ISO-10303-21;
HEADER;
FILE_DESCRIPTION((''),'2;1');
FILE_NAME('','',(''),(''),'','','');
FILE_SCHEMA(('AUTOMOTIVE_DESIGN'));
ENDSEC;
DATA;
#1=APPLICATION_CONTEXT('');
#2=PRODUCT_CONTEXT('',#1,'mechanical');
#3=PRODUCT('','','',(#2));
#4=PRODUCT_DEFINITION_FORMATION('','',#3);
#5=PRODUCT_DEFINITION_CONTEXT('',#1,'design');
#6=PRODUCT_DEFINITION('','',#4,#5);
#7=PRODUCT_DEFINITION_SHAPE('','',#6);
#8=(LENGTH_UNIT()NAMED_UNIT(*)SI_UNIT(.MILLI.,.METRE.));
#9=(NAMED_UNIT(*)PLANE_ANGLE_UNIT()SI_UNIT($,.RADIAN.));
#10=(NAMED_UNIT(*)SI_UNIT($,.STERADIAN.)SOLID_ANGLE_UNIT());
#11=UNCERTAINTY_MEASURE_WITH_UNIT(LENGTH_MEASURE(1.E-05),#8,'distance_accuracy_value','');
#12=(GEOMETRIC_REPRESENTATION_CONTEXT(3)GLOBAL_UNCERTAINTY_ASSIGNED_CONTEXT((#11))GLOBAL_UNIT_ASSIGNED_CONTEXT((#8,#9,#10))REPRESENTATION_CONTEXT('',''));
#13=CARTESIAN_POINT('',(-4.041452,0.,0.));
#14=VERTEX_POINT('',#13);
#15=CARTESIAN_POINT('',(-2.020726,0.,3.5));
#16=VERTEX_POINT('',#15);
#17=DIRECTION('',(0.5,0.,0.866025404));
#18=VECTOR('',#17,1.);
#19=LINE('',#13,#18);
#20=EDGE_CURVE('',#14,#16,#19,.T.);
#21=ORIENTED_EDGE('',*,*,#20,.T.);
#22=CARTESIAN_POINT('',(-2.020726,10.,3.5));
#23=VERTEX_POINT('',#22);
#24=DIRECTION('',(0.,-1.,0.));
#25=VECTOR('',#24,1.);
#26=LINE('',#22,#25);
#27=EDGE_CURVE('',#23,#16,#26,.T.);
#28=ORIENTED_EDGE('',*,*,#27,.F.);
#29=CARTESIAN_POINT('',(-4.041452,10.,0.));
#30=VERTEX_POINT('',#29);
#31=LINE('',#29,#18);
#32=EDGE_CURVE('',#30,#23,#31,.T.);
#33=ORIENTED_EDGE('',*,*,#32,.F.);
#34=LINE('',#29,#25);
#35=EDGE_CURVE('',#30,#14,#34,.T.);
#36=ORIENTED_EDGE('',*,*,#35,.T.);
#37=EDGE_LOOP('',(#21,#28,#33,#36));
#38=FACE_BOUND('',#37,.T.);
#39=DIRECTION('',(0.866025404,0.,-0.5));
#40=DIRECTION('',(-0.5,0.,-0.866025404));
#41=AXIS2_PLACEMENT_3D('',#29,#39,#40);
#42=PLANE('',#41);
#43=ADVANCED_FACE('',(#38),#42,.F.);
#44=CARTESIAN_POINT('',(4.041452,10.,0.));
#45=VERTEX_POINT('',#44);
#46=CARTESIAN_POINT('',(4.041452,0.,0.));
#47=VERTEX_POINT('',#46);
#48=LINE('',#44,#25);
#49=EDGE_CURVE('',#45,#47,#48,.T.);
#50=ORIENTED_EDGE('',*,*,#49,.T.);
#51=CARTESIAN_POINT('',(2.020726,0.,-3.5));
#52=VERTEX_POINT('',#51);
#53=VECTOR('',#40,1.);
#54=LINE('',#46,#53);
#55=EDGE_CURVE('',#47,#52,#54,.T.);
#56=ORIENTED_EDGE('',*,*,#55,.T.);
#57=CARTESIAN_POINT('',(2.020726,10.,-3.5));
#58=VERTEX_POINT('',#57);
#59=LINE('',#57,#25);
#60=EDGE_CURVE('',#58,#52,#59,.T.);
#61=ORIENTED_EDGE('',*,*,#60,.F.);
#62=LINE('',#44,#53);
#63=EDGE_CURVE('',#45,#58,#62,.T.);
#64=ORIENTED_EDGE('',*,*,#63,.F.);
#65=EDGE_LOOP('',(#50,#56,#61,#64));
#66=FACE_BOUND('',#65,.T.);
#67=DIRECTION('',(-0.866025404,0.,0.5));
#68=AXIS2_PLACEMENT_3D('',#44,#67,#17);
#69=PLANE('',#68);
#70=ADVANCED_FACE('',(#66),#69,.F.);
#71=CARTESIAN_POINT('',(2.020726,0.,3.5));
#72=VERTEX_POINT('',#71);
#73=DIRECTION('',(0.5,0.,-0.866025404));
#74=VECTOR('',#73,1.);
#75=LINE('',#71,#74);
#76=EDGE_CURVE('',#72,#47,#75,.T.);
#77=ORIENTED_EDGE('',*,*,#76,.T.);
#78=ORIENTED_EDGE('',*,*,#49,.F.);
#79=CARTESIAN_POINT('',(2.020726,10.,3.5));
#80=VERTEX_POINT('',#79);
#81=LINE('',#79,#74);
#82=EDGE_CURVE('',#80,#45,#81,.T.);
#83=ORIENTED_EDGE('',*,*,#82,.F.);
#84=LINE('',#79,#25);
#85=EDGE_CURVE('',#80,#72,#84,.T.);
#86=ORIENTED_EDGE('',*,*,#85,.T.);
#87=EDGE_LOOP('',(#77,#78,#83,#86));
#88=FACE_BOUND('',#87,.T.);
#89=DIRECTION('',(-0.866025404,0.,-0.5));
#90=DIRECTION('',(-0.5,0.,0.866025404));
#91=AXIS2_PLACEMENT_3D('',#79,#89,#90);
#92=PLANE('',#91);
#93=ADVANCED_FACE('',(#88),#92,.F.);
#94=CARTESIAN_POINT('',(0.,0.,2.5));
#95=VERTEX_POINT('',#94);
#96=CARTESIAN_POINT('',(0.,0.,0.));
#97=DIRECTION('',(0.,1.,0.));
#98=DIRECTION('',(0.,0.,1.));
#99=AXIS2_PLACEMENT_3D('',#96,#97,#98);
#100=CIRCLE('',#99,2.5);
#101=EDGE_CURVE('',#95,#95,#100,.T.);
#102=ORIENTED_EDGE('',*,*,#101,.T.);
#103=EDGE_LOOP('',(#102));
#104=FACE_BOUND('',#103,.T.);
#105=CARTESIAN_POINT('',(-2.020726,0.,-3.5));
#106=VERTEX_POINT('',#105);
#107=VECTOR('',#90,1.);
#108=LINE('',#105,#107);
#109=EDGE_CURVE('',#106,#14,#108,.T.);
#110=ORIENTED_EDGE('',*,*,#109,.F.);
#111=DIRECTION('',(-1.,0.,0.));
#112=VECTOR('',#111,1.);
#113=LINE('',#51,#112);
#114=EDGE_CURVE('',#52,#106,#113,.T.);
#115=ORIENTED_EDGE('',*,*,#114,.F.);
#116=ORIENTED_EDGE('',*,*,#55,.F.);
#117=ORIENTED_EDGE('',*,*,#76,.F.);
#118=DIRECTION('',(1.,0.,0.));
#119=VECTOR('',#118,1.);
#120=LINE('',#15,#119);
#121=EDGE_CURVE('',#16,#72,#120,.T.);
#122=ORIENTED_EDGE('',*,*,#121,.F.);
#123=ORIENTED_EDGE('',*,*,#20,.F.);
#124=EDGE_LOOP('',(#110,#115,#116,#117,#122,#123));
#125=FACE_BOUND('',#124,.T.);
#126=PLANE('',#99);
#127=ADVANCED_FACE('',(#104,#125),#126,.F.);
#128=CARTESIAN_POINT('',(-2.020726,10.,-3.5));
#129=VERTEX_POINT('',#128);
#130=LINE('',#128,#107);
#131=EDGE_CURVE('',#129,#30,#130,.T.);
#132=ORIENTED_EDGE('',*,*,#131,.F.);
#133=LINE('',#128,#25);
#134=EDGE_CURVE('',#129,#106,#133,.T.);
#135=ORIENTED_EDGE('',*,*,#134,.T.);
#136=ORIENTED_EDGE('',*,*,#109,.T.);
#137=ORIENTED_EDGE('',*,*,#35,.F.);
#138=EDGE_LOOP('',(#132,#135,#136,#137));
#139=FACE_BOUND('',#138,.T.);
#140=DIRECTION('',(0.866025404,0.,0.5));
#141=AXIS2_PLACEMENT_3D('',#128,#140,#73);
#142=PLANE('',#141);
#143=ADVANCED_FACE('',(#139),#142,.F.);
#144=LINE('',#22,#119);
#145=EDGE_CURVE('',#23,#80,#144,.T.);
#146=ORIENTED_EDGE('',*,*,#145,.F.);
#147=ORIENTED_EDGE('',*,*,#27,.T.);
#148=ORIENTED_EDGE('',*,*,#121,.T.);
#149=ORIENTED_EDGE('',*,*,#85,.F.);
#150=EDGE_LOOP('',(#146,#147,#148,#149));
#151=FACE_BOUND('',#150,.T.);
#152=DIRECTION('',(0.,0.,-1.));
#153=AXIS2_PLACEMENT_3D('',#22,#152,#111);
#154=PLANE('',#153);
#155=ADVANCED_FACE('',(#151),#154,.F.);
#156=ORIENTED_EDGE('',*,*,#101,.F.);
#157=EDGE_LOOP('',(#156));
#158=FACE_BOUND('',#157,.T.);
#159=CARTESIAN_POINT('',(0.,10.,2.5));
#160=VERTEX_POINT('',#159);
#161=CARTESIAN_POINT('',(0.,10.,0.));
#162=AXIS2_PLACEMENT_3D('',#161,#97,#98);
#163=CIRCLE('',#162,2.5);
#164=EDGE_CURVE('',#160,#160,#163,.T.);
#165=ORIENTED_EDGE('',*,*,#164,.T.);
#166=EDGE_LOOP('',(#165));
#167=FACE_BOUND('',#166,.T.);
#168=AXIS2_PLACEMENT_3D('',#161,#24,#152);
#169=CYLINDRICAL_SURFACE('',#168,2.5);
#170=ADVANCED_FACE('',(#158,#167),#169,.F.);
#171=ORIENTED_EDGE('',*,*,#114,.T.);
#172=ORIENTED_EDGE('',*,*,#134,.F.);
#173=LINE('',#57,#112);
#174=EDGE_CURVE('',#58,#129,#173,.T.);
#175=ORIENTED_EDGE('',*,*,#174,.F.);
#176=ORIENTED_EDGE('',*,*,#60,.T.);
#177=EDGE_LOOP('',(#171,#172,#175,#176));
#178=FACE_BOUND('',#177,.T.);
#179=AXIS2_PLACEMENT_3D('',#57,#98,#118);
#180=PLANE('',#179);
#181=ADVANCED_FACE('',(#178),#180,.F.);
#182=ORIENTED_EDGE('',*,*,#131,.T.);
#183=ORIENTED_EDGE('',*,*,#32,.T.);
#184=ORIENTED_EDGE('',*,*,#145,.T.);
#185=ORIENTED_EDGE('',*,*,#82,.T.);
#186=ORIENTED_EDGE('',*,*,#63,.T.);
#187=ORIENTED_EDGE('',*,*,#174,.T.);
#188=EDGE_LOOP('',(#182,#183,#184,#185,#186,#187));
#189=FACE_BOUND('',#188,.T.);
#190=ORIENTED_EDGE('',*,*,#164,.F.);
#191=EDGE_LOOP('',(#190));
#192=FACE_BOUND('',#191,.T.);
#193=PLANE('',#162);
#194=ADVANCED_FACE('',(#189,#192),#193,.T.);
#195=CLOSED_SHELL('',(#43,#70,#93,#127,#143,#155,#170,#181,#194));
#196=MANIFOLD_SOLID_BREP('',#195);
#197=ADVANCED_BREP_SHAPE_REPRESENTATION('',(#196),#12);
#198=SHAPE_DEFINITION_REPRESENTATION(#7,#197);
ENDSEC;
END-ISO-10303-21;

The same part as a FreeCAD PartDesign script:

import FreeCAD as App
import Part
import Sketcher

V = App.Vector
Q = App.Units.Quantity

doc = App.newDocument("Part")
body = doc.addObject("PartDesign::Body", "Body")

sketch1 = doc.addObject("Sketcher::SketchObject", "Sketch")
body.addObject(sketch1)
sketch1.AttachmentSupport = (doc.XZ_Plane, [""])
sketch1.MapMode = "FlatFace"
sketch1.addGeometry([
    Part.LineSegment(V(2, -3.5, 0), V(-2, -3.5, 0)),
    Part.LineSegment(V(-2, -3.5, 0), V(-4, 0, 0)),
    Part.LineSegment(V(-4, 0, 0), V(-2, 3.5, 0)),
    Part.LineSegment(V(-2, 3.5, 0), V(2, 3.5, 0)),
    Part.LineSegment(V(2, 3.5, 0), V(4, 0, 0)),
    Part.LineSegment(V(4, 0, 0), V(2, -3.5, 0)),
    Part.Circle(V(0, 0, 0), V(0, 0, 1), 2.5),
], False)
sketch1.addConstraint([
    Sketcher.Constraint("Coincident", 0, 2, 1, 1),
    Sketcher.Constraint("Coincident", 1, 2, 2, 1),
    Sketcher.Constraint("Coincident", 2, 2, 3, 1),
    Sketcher.Constraint("Coincident", 3, 2, 4, 1),
    Sketcher.Constraint("Coincident", 4, 2, 5, 1),
    Sketcher.Constraint("Coincident", 5, 2, 0, 1),
    Sketcher.Constraint("Horizontal", 0),
    Sketcher.Constraint("Horizontal", 3),
    Sketcher.Constraint("Coincident", 6, 3, -1, 1),
    Sketcher.Constraint("Symmetric", 0, 2, 3, 2, -1, 1),
    Sketcher.Constraint("Symmetric", 1, 2, 4, 2, -1, 1),
    Sketcher.Constraint("PointOnObject", 1, 2, -1),
    Sketcher.Constraint("Parallel", 2, 5),
    Sketcher.Constraint("Vertical", 0, 2, 2, 2),
    Sketcher.Constraint("Diameter", 6, 5.0),
    Sketcher.Constraint("Angle", 1, Q("120 deg")),
    Sketcher.Constraint("DistanceY", 0, 2, 2, 2, 7.0),
    Sketcher.Constraint("DistanceX", 0, 2, 0, 1, 4.041452),
])
pad1 = doc.addObject("PartDesign::Pad", "Pad")
body.addObject(pad1)
pad1.Profile = sketch1
pad1.Length = 10
pad1.Reversed = True

doc.recompute()
